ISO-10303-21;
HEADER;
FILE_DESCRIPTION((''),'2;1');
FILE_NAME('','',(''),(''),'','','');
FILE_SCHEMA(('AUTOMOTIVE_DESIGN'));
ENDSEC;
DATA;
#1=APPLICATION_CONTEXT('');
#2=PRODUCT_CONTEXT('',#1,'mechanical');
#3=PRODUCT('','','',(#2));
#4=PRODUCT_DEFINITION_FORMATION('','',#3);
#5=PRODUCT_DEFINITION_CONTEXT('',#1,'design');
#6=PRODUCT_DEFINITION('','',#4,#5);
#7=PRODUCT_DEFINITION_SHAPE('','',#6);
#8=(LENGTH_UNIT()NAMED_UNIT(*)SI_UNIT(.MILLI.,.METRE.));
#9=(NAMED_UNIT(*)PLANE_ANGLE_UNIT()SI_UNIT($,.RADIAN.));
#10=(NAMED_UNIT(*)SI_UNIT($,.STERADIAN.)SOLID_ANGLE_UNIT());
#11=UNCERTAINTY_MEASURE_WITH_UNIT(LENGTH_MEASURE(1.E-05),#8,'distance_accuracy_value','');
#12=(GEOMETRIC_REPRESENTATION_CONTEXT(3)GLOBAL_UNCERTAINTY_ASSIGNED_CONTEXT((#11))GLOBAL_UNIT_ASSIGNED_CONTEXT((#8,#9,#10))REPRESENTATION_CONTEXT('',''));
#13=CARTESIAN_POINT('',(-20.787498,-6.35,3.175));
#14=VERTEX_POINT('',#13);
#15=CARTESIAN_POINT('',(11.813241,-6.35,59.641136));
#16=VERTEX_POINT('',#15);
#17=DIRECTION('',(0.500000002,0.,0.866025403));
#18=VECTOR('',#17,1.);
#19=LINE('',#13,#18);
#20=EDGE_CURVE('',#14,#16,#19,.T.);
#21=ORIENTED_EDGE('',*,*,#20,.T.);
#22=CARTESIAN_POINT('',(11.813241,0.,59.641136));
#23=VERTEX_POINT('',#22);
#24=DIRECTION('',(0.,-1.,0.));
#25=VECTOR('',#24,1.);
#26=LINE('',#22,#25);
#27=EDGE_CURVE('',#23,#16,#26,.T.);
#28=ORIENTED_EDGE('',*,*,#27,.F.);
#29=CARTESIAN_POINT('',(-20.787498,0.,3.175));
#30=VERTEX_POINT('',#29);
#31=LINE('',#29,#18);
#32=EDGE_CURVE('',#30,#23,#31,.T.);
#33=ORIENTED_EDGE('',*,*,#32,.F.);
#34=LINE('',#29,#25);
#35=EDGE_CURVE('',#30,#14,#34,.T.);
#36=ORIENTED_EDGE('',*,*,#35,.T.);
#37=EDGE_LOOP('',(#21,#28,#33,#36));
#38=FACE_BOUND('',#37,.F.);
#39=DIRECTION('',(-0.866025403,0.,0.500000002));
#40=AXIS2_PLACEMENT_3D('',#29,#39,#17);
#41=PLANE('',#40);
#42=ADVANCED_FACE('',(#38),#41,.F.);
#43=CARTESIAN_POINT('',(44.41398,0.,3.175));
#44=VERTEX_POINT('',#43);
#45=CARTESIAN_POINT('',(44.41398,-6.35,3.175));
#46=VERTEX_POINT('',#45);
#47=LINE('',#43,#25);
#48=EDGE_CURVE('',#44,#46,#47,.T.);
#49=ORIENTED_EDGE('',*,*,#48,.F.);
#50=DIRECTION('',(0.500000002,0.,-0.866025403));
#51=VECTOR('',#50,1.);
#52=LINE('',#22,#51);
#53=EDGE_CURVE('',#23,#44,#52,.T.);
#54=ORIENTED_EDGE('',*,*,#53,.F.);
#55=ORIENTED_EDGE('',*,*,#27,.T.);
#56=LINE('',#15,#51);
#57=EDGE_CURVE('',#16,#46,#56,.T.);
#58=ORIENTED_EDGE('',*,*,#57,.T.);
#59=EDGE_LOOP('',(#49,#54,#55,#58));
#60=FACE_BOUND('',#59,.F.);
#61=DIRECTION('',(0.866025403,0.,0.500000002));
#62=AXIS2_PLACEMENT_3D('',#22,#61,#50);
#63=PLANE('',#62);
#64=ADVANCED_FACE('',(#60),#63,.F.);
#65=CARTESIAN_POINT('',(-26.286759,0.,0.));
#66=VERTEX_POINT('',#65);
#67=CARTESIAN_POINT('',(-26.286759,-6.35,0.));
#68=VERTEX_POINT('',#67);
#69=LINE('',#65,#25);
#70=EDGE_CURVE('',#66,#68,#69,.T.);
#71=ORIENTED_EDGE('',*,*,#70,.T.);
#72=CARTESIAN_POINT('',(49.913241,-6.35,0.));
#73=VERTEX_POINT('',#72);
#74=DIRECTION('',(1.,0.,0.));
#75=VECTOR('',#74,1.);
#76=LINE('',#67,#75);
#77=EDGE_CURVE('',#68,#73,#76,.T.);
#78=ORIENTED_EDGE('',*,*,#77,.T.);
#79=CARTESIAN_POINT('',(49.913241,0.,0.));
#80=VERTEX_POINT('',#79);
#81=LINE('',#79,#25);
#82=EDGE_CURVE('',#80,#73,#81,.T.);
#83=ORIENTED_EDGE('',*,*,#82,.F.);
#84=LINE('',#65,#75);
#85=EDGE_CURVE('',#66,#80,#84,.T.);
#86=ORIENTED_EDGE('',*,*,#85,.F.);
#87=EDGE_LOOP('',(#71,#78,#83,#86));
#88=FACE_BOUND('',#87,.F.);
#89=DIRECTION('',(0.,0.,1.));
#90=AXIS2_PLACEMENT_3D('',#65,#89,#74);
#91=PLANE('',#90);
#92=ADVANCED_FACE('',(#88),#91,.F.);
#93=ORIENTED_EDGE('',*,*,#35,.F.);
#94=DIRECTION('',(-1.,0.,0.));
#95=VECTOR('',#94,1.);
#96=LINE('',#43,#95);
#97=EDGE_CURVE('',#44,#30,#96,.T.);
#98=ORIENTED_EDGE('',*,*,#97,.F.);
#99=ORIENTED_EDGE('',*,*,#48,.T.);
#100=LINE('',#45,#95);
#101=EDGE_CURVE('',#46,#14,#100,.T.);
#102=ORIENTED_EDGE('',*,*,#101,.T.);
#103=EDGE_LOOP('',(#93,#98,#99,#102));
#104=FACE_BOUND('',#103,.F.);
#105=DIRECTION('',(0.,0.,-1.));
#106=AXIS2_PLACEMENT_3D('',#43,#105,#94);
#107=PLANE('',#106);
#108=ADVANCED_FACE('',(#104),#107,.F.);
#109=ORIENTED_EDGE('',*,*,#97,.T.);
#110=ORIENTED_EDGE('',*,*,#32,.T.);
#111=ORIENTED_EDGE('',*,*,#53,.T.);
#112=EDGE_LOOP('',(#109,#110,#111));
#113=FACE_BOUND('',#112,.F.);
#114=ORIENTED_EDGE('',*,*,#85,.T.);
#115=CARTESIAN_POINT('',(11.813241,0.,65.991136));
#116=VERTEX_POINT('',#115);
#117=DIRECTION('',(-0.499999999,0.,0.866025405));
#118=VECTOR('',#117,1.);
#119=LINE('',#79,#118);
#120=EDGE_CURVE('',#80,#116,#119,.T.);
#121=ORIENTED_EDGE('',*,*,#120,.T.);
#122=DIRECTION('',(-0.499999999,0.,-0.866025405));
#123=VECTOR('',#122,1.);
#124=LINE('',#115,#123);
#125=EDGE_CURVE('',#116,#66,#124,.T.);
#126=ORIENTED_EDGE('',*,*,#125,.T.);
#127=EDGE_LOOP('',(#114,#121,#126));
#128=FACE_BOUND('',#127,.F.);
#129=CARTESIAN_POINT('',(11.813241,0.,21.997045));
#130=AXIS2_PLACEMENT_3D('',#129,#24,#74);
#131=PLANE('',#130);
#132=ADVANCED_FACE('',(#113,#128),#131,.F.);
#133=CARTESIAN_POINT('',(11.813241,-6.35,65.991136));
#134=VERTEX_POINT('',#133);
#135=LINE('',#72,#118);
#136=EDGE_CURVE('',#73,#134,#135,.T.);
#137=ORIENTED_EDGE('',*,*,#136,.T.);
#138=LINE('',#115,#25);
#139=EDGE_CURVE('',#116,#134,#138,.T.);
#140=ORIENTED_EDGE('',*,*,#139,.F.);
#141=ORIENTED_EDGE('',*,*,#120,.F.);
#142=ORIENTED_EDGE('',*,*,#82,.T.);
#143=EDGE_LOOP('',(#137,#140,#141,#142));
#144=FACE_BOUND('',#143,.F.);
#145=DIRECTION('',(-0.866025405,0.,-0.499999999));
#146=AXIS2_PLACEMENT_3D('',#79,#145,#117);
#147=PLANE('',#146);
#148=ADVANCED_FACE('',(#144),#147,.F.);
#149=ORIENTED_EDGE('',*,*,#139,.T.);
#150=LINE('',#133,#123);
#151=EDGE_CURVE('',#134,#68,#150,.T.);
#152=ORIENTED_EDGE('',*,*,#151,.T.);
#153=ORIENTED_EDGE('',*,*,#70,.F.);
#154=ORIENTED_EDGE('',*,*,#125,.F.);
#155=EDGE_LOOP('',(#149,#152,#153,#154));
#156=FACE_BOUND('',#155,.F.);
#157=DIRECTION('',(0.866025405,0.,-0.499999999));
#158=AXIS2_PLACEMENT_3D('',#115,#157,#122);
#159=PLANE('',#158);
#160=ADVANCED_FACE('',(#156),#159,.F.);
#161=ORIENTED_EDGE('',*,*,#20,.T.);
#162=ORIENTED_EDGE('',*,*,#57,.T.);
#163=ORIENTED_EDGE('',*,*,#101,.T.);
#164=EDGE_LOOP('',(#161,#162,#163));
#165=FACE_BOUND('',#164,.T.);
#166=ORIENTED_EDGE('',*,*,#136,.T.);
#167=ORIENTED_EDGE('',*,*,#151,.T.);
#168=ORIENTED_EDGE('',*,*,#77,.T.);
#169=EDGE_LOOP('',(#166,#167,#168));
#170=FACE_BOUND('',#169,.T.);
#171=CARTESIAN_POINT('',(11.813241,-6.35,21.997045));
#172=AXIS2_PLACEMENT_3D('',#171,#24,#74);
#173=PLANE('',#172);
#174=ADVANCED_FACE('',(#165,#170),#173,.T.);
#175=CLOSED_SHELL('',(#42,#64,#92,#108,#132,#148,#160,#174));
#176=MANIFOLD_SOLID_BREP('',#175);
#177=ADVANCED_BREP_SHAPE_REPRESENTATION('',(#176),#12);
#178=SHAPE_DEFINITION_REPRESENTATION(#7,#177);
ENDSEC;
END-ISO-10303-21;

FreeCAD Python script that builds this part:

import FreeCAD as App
import Part
import Sketcher
Q = App.Units.Quantity


def add_polygon(sketch, points):
    """Adds a closed chain of lines whose ends are joined by coincident constraints."""
    first, n = sketch.GeometryCount, len(points)
    for a, b in zip(points, points[1:] + points[:1]):
        sketch.addGeometry(Part.LineSegment(App.Vector(*a, 0), App.Vector(*b, 0)), False)
    for i in range(n):
        sketch.addConstraint(Sketcher.Constraint("Coincident", first + i, 2, first + (i + 1) % n, 1))

doc = App.newDocument("Part")
body = doc.addObject("PartDesign::Body", "Body")

sketch1 = body.newObject("Sketcher::SketchObject", "Sketch")
sketch1.AttachmentSupport = (doc.getObject("XZ_Plane"), [""])
sketch1.MapMode = "FlatFace"
add_polygon(sketch1, [(12, 66), (-26, 0), (50, 0)])
add_polygon(sketch1, [(12, 60), (44, 3), (-21, 3)])
sketch1.addConstraint(Sketcher.Constraint("Horizontal", 1))
sketch1.addConstraint(Sketcher.Constraint("Horizontal", 4))
sketch1.addConstraint(Sketcher.Constraint("PointOnObject", 0, 2, -1))
sketch1.addConstraint(Sketcher.Constraint("Parallel", 2, 3))
sketch1.addConstraint(Sketcher.Constraint("Parallel", 0, 5))
sketch1.addConstraint(Sketcher.Constraint("Vertical", 2, 2, 5, 2))
sketch1.addConstraint(Sketcher.Constraint("Equal", 0, 2))
sketch1.addConstraint(Sketcher.Constraint("DistanceX", 1, 1, 1, 2, Q("3 in")))
sketch1.addConstraint(Sketcher.Constraint("Distance", 0, Q("3 in")))
sketch1.addConstraint(Sketcher.Constraint("DistanceY", 5, 2, 2, 2, Q("0.25 in")))
sketch1.addConstraint(Sketcher.Constraint("DistanceY", -1, 1, 3, 2, Q("0.125 in")))
sketch1.addConstraint(Sketcher.Constraint("DistanceX", 0, 2, -1, 1, Q("26.286759 mm")))
pad1 = body.newObject("PartDesign::Pad", "Pad")
pad1.Profile = sketch1
pad1.Length = Q("0.25 in")

doc.recompute()
